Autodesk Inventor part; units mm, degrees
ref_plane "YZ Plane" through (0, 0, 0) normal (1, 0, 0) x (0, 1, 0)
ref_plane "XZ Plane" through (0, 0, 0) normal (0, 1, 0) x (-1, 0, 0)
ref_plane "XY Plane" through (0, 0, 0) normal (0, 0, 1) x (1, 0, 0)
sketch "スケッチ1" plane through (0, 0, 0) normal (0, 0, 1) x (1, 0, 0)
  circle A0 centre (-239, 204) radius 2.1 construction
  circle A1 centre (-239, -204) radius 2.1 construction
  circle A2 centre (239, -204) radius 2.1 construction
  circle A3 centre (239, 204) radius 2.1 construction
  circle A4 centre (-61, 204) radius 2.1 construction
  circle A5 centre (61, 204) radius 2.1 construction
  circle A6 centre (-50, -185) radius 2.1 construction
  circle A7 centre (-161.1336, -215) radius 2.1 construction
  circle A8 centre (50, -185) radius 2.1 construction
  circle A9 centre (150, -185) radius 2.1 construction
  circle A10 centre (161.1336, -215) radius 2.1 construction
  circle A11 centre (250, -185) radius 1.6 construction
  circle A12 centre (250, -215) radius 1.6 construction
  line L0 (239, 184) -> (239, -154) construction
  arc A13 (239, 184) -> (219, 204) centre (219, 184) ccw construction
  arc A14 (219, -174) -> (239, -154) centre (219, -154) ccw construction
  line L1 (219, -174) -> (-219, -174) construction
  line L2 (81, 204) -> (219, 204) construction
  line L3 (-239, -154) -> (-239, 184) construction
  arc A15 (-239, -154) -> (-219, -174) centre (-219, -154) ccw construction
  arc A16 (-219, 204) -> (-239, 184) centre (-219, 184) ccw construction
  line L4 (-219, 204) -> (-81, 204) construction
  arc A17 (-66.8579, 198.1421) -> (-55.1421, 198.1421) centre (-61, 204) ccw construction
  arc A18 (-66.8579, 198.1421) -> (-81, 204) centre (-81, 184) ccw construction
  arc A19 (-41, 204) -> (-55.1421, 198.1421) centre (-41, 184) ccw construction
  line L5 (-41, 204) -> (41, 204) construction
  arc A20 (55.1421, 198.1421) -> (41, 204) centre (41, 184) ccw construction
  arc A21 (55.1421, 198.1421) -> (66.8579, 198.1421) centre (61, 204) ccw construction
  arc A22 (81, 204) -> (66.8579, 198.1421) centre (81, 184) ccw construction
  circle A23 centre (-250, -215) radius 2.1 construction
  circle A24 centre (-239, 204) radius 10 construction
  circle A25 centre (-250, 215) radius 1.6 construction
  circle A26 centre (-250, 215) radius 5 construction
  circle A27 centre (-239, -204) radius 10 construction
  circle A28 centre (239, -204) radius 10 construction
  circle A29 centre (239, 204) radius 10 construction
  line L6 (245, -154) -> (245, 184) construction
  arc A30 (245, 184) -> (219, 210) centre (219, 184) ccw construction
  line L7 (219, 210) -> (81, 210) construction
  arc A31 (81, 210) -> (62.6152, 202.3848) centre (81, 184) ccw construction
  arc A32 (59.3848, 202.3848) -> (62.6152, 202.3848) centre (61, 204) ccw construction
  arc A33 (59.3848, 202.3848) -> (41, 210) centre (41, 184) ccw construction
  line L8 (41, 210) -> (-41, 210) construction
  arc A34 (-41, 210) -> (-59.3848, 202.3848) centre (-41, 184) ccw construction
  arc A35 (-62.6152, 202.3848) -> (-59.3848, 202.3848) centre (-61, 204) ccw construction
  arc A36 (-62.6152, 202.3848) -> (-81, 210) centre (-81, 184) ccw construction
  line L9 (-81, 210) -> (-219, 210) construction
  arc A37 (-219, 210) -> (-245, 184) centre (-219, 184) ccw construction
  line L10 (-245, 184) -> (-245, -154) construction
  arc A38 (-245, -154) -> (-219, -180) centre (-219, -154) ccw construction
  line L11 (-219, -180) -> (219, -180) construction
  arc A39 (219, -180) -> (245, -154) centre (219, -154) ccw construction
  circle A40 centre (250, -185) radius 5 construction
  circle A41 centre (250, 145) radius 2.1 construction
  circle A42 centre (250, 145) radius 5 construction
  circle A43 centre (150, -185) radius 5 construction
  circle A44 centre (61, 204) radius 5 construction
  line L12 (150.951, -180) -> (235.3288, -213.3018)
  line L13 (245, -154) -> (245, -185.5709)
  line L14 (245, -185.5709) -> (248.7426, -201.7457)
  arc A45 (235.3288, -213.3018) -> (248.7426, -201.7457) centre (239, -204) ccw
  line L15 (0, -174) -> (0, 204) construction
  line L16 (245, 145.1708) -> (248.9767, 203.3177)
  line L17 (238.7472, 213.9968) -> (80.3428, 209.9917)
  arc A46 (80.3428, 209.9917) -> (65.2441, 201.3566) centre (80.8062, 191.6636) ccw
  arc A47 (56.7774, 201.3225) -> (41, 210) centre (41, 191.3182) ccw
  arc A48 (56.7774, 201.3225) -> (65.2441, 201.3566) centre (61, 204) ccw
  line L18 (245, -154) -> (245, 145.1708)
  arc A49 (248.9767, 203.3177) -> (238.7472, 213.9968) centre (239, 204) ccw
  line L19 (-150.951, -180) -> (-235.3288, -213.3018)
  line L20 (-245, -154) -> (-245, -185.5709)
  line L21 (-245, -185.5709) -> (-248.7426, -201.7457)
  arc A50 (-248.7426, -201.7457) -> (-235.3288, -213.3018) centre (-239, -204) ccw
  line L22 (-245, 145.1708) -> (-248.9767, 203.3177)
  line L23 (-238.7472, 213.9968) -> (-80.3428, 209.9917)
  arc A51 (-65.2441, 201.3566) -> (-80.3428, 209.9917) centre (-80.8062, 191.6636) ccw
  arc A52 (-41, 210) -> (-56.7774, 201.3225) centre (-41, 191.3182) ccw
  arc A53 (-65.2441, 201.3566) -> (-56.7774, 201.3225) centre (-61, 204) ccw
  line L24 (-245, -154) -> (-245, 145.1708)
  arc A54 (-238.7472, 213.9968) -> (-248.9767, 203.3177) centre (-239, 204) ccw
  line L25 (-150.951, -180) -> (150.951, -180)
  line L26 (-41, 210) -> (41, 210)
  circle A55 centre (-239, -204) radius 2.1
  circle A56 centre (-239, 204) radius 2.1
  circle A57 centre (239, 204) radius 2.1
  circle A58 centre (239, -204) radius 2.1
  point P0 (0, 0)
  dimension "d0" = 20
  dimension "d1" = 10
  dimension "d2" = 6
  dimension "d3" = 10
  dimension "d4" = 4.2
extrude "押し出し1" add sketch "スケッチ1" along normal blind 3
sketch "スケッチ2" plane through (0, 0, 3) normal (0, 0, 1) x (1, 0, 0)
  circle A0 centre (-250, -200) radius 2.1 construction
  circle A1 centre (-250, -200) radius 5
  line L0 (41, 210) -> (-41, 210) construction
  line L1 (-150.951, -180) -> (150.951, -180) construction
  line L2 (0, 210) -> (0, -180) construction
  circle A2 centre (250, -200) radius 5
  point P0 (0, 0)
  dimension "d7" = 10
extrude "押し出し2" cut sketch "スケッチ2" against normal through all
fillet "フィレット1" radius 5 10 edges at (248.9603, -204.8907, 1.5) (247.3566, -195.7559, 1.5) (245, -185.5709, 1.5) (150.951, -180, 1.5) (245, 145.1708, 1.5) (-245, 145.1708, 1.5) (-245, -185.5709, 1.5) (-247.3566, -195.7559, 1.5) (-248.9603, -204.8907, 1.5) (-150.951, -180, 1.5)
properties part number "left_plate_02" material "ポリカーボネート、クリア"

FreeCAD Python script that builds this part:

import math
import FreeCAD as App
import Part
import Sketcher
Q = App.Units.Quantity


def edges_at(feature, points):
    """Names of the edges that pass closest to the given points."""
    edges = feature.Shape.Edges
    near = lambda p: min(range(len(edges)), key=lambda i: edges[i].distToShape(Part.Vertex(*p))[0])
    return sorted({f"Edge{near(p) + 1}" for p in points})

doc = App.newDocument("Part")
params = doc.addObject("Spreadsheet::Sheet", "Params")
for row, (alias, value) in enumerate([
    ("sketch1_radius", "10 mm"),
    ("sketch1_radius2", "5 mm"),
    ("sketch1_diameter", "4.2 mm"),
    ("sketch1_width", "82 mm"),
    ("pad1_length", "3 mm"),
    ("sketch2_diameter", "10 mm"),
    ("fillet_radius", "5 mm"),
], start=1):
    params.set(f"A{row}", alias)
    params.set(f"B{row}", "=" + value)
    params.setAlias(f"B{row}", alias)

body = doc.addObject("PartDesign::Body", "Body")

# Sketch on XY plane
sketch1 = body.newObject("Sketcher::SketchObject", "Sketch")
sketch1.AttachmentSupport = (doc.getObject("XY_Plane"), [""])
sketch1.MapMode = "FlatFace"
sketch1.addGeometry([
    Part.LineSegment(App.Vector(-151, -180, 0), App.Vector(151, -180, 0)),  # 0
    Part.LineSegment(App.Vector(151, -180, 0), App.Vector(235.3, -213.3, 0)),  # 1
    Part.ArcOfCircle(Part.Circle(App.Vector(239, -204, 0), App.Vector(0, 0, 1), 10), math.radians(-112), math.radians(13)),  # 2
    Part.LineSegment(App.Vector(248.7, -201.7, 0), App.Vector(245, -185.6, 0)),  # 3
    Part.LineSegment(App.Vector(245, -185.6, 0), App.Vector(245, 145.2, 0)),  # 4
    Part.LineSegment(App.Vector(245, 145.2, 0), App.Vector(249, 203.3, 0)),  # 5
    Part.ArcOfCircle(Part.Circle(App.Vector(239, 204, 0), App.Vector(0, 0, 1), 10), math.radians(-4), math.radians(91)),  # 6
    Part.LineSegment(App.Vector(238.7, 214, 0), App.Vector(80.3, 210, 0)),  # 7
    Part.ArcOfCircle(Part.Circle(App.Vector(80.8, 191.7, 0), App.Vector(0, 0, 1), 18.3), math.radians(91), math.radians(148)),  # 8
    Part.ArcOfCircle(Part.Circle(App.Vector(61, 204, 0), App.Vector(0, 0, 1), 5), math.radians(-148), math.radians(-32)),  # 9
    Part.ArcOfCircle(Part.Circle(App.Vector(41, 191.3, 0), App.Vector(0, 0, 1), 18.7), math.radians(32), math.radians(90)),  # 10
    Part.LineSegment(App.Vector(41, 210, 0), App.Vector(-41, 210, 0)),  # 11
    Part.ArcOfCircle(Part.Circle(App.Vector(-41, 191.3, 0), App.Vector(0, 0, 1), 18.7), math.radians(90), math.radians(148)),  # 12
    Part.ArcOfCircle(Part.Circle(App.Vector(-61, 204, 0), App.Vector(0, 0, 1), 5), math.radians(-148), math.radians(-32)),  # 13
    Part.ArcOfCircle(Part.Circle(App.Vector(-80.8, 191.7, 0), App.Vector(0, 0, 1), 18.3), math.radians(32), math.radians(89)),  # 14
    Part.LineSegment(App.Vector(-80.3, 210, 0), App.Vector(-238.7, 214, 0)),  # 15
    Part.ArcOfCircle(Part.Circle(App.Vector(-239, 204, 0), App.Vector(0, 0, 1), 10), math.radians(89), math.radians(184)),  # 16
    Part.LineSegment(App.Vector(-249, 203.3, 0), App.Vector(-245, 145.2, 0)),  # 17
    Part.LineSegment(App.Vector(-245, 145.2, 0), App.Vector(-245, -185.6, 0)),  # 18
    Part.LineSegment(App.Vector(-245, -185.6, 0), App.Vector(-248.7, -201.7, 0)),  # 19
    Part.ArcOfCircle(Part.Circle(App.Vector(-239, -204, 0), App.Vector(0, 0, 1), 10), math.radians(167), math.radians(292)),  # 20
    Part.LineSegment(App.Vector(-235.3, -213.3, 0), App.Vector(-151, -180, 0)),  # 21
    Part.Circle(App.Vector(-239, -204, 0), App.Vector(0, 0, 1), 2.1),  # 22
    Part.Circle(App.Vector(239, -204, 0), App.Vector(0, 0, 1), 2.1),  # 23
    Part.Circle(App.Vector(-239, 204, 0), App.Vector(0, 0, 1), 2.1),  # 24
    Part.Circle(App.Vector(239, 204, 0), App.Vector(0, 0, 1), 2.1),  # 25
], False)
sketch1.addConstraint([
    Sketcher.Constraint("Coincident", 0, 2, 1, 1),
    Sketcher.Constraint("Tangent", 1, 2, 2, 1),
    Sketcher.Constraint("Tangent", 2, 2, 3, 1),
    Sketcher.Constraint("Coincident", 3, 2, 4, 1),
    Sketcher.Constraint("Coincident", 4, 2, 5, 1),
    Sketcher.Constraint("Tangent", 5, 2, 6, 1),
    Sketcher.Constraint("Tangent", 6, 2, 7, 1),
    Sketcher.Constraint("Tangent", 7, 2, 8, 1),
    Sketcher.Constraint("Tangent", 8, 2, 9, 2),
    Sketcher.Constraint("Tangent", 9, 1, 10, 1),
    Sketcher.Constraint("Tangent", 10, 2, 11, 1),
    Sketcher.Constraint("Tangent", 11, 2, 12, 1),
    Sketcher.Constraint("Tangent", 12, 2, 13, 2),
    Sketcher.Constraint("Tangent", 13, 1, 14, 1),
    Sketcher.Constraint("Tangent", 14, 2, 15, 1),
    Sketcher.Constraint("Tangent", 15, 2, 16, 1),
    Sketcher.Constraint("Tangent", 16, 2, 17, 1),
    Sketcher.Constraint("Coincident", 17, 2, 18, 1),
    Sketcher.Constraint("Coincident", 18, 2, 19, 1),
    Sketcher.Constraint("Tangent", 19, 2, 20, 1),
    Sketcher.Constraint("Tangent", 20, 2, 21, 1),
    Sketcher.Constraint("Coincident", 21, 2, 0, 1),
    Sketcher.Constraint("Horizontal", 0),
    Sketcher.Constraint("Vertical", 4),
    Sketcher.Constraint("Horizontal", 11),
    Sketcher.Constraint("Vertical", 18),
    Sketcher.Constraint("Coincident", 22, 3, 20, 3),
    Sketcher.Constraint("Coincident", 23, 3, 2, 3),
    Sketcher.Constraint("Coincident", 24, 3, 16, 3),
    Sketcher.Constraint("Coincident", 25, 3, 6, 3),
    Sketcher.Constraint("Equal", 2, 6),
    Sketcher.Constraint("Equal", 10, 12),
    Sketcher.Constraint("Equal", 9, 13),
    Sketcher.Constraint("Equal", 8, 14),
    Sketcher.Constraint("Equal", 6, 16),
    Sketcher.Constraint("Equal", 16, 20),
    Sketcher.Constraint("Equal", 22, 23),
    Sketcher.Constraint("Equal", 23, 24),
    Sketcher.Constraint("Equal", 24, 25),
    Sketcher.Constraint("Symmetric", 2, 3, 16, 3, -1, 1),
    Sketcher.Constraint("Symmetric", 6, 3, 20, 3, -1, 1),
    Sketcher.Constraint("Symmetric", 9, 3, 13, 3, -2),
    Sketcher.Constraint("Symmetric", 6, 3, 16, 3, -2),
    Sketcher.Constraint("Symmetric", 4, 2, 17, 2, -2),
    Sketcher.Constraint("Horizontal", 6, 3, 9, 3),
    Sketcher.Constraint("Horizontal", 8, 3, 14, 3),
    Sketcher.Constraint("Horizontal", 3, 2, 18, 2),
    Sketcher.Constraint("Horizontal", 1, 2, 20, 2),
    Sketcher.Constraint("Radius", 2, Q("10 mm")),
    Sketcher.Constraint("Radius", 9, Q("5 mm")),
    Sketcher.Constraint("Diameter", 22, Q("4.2 mm")),
    Sketcher.Constraint("DistanceX", 10, 3, 9, 3, Q("20 mm")),
    Sketcher.Constraint("DistanceX", 2, 3, 3, 2, Q("6 mm")),
    Sketcher.Constraint("DistanceY", 9, 3, 10, 2, Q("6 mm")),
    Sketcher.Constraint("DistanceX", 11, 2, 11, 1, Q("82 mm")),
    Sketcher.Constraint("DistanceX", -1, 1, 2, 3, Q("239 mm")),
    Sketcher.Constraint("DistanceY", 2, 3, -1, 1, Q("204 mm")),
    Sketcher.Constraint("DistanceY", 0, 2, -1, 1, Q("180 mm")),
    Sketcher.Constraint("Radius", 8, Q("18.334 mm")),
    Sketcher.Constraint("DistanceX", 0, 1, 0, 2, Q("301.902 mm")),
    Sketcher.Constraint("Distance", 7, Q("158.455 mm")),
    Sketcher.Constraint("DistanceY", 4, 1, 4, 2, Q("330.7417 mm")),
    Sketcher.Constraint("DistanceY", 3, 2, -1, 1, Q("185.571 mm")),
])
sketch1.setExpression("Constraints[48]", "Params.sketch1_radius")
sketch1.setExpression("Constraints[49]", "Params.sketch1_radius2")
sketch1.setExpression("Constraints[50]", "Params.sketch1_diameter")
sketch1.setExpression("Constraints[54]", "Params.sketch1_width")
pad1 = body.newObject("PartDesign::Pad", "Pad")
pad1.Profile = sketch1
pad1.setExpression("Length", "Params.pad1_length")

# Sketch on XY plane
sketch2 = body.newObject("Sketcher::SketchObject", "Sketch001")
sketch2.AttachmentSupport = (doc.getObject("XY_Plane"), [""])
sketch2.MapMode = "FlatFace"
sketch2.AttachmentOffset = App.Placement(App.Vector(0, 0, 3), App.Rotation())
sketch2.addGeometry([
    Part.Circle(App.Vector(-250, -200, 0), App.Vector(0, 0, 1), 5),
    Part.Circle(App.Vector(250, -200, 0), App.Vector(0, 0, 1), 5),
], False)
sketch2.addConstraint([
    Sketcher.Constraint("Equal", 0, 1),
    Sketcher.Constraint("Symmetric", 0, 3, 1, 3, -2),
    Sketcher.Constraint("Diameter", 0, Q("10 mm")),
    Sketcher.Constraint("DistanceX", 0, 3, -1, 1, Q("250 mm")),
    Sketcher.Constraint("DistanceY", 0, 3, -1, 1, Q("200 mm")),
])
sketch2.setExpression("Constraints[2]", "Params.sketch2_diameter")
pocket1 = body.newObject("PartDesign::Pocket", "Pocket")
pocket1.Profile = sketch2
pocket1.Type = "ThroughAll"
doc.recompute()

fillet = body.newObject("PartDesign::Fillet", "Fillet")
fillet.Base = (pocket1, edges_at(pocket1, [
    (248.96, -204.891, 1.5),
    (247.357, -195.756, 1.5),
    (245, -185.571, 1.5),
    (150.951, -180, 1.5),
    (245, 145.171, 1.5),
    (-245, 145.171, 1.5),
    (-245, -185.571, 1.5),
    (-247.357, -195.756, 1.5),
    (-248.96, -204.891, 1.5),
    (-150.951, -180, 1.5),
]))
fillet.setExpression("Radius", "Params.fillet_radius")

doc.recompute()
